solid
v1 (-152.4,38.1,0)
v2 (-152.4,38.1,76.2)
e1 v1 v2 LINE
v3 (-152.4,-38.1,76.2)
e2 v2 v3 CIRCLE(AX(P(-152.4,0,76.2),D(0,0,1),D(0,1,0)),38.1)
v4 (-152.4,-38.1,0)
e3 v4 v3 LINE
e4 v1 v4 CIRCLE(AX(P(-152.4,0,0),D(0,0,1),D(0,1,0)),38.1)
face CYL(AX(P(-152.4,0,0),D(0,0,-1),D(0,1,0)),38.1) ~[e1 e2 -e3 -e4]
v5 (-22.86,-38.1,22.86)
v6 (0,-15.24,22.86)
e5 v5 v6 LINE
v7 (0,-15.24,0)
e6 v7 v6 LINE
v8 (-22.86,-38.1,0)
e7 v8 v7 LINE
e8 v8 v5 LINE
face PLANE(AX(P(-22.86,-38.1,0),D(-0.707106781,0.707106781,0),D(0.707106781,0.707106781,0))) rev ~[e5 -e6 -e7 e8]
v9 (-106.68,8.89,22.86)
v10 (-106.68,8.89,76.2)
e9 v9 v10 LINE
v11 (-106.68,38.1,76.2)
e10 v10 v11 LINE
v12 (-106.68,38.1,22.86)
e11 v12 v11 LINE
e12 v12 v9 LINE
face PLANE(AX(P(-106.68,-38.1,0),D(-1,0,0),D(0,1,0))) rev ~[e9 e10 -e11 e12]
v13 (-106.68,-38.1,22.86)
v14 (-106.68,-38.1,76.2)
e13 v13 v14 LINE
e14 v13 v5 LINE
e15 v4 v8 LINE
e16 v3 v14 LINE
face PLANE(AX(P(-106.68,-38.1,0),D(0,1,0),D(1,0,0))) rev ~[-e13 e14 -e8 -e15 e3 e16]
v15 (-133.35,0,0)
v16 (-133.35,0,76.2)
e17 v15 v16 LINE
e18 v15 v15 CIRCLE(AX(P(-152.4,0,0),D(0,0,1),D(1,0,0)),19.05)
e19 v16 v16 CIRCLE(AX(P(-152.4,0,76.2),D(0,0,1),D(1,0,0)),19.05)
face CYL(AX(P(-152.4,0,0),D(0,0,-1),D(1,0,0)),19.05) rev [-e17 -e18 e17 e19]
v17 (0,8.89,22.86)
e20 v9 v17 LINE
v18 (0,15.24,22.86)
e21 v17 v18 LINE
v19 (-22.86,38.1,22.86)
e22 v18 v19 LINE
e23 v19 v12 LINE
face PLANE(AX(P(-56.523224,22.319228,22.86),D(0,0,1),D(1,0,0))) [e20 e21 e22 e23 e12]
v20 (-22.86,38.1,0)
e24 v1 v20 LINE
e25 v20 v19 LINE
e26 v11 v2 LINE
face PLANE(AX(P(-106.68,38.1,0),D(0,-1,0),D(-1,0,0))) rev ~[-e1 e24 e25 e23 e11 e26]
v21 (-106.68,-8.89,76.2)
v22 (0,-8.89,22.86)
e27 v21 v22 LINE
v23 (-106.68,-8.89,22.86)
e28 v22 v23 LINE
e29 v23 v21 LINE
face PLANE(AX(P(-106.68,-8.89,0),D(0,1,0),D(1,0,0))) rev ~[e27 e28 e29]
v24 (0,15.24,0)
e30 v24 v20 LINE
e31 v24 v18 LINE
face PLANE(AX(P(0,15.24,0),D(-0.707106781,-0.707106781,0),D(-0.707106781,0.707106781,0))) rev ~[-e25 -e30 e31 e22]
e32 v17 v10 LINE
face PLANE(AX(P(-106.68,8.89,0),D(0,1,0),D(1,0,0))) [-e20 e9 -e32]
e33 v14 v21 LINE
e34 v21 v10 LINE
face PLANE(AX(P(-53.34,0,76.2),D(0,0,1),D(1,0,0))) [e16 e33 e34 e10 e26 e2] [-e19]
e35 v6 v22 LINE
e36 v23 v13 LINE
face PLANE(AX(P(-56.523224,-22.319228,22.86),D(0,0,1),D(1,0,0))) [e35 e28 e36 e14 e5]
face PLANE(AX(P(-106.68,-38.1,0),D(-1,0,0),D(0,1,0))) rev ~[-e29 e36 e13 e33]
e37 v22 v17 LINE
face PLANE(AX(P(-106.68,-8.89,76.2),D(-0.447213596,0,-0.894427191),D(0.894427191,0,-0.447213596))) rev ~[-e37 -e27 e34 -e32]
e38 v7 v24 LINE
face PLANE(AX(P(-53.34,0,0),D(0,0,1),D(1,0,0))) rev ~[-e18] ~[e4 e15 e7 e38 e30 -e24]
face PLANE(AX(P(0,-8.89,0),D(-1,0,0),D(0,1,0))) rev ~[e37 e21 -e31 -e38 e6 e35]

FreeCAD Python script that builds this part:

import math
import FreeCAD as App
import Part
import Sketcher
from FreeCAD import Vector
Q = App.Units.Quantity

doc = App.newDocument("Part")
body = doc.addObject("PartDesign::Body", "Body")

# Sketch on XY plane
sketch1 = body.newObject("Sketcher::SketchObject", "Sketch")
sketch1.AttachmentSupport = (doc.getObject("XY_Plane"), [""])
sketch1.MapMode = "FlatFace"
sketch1.addGeometry([
    Part.LineSegment(Vector(-107, 38, 0), Vector(-152, 38, 0)),  # 0
    Part.ArcOfCircle(Part.Circle(Vector(-152, 0, 0), Vector(0, 0, 1), 38), math.radians(90), math.radians(270)),  # 1
    Part.LineSegment(Vector(-152, -38, 0), Vector(-107, -38, 0)),  # 2
    Part.LineSegment(Vector(-107, -38, 0), Vector(-107, 38, 0)),  # 3
    Part.Circle(Vector(-152, 0, 0), Vector(0, 0, 1), 19),  # 4
], False)
sketch1.addConstraint([
    Sketcher.Constraint("Tangent", 0, 2, 1, 1),
    Sketcher.Constraint("Tangent", 1, 2, 2, 1),
    Sketcher.Constraint("Coincident", 2, 2, 3, 1),
    Sketcher.Constraint("Coincident", 3, 2, 0, 1),
    Sketcher.Constraint("Horizontal", 0),
    Sketcher.Constraint("Horizontal", 2),
    Sketcher.Constraint("Vertical", 3),
    Sketcher.Constraint("Coincident", 4, 3, 1, 3),
    Sketcher.Constraint("PointOnObject", 1, 3, -1),
    Sketcher.Constraint("Diameter", 4, Q("1.5 in")),
    Sketcher.Constraint("Radius", 1, Q("1.5 in")),
    Sketcher.Constraint("DistanceX", 0, 2, 0, 1, Q("1.8 in")),
    Sketcher.Constraint("DistanceX", 1, 3, -1, 1, Q("6 in")),
])
pad1 = body.newObject("PartDesign::Pad", "Pad")
pad1.Profile = sketch1
pad1.Length = Q("3 in")

# Sketch on XY plane
sketch2 = body.newObject("Sketcher::SketchObject", "Sketch001")
sketch2.AttachmentSupport = (doc.getObject("XY_Plane"), [""])
sketch2.MapMode = "FlatFace"
sketch2.addGeometry([
    Part.LineSegment(Vector(-107, -9, 0), Vector(-107, -38, 0)),  # 0
    Part.LineSegment(Vector(-107, -38, 0), Vector(-23, -38, 0)),  # 1
    Part.LineSegment(Vector(-23, -38, 0), Vector(0, -15, 0)),  # 2
    Part.LineSegment(Vector(0, -15, 0), Vector(0, -9, 0)),  # 3
    Part.LineSegment(Vector(0, -9, 0), Vector(-107, -9, 0)),  # 4
    Part.LineSegment(Vector(-23, 38, 0), Vector(-107, 38, 0)),  # 5
    Part.LineSegment(Vector(-107, 38, 0), Vector(-107, 9, 0)),  # 6
    Part.LineSegment(Vector(-107, 9, 0), Vector(0, 9, 0)),  # 7
    Part.LineSegment(Vector(0, 9, 0), Vector(0, 15, 0)),  # 8
    Part.LineSegment(Vector(0, 15, 0), Vector(-23, 38, 0)),  # 9
], False)
sketch2.addConstraint([
    Sketcher.Constraint("Coincident", 0, 2, 1, 1),
    Sketcher.Constraint("Coincident", 1, 2, 2, 1),
    Sketcher.Constraint("Coincident", 2, 2, 3, 1),
    Sketcher.Constraint("Coincident", 3, 2, 4, 1),
    Sketcher.Constraint("Coincident", 4, 2, 0, 1),
    Sketcher.Constraint("Coincident", 5, 2, 6, 1),
    Sketcher.Constraint("Coincident", 6, 2, 7, 1),
    Sketcher.Constraint("Coincident", 7, 2, 8, 1),
    Sketcher.Constraint("Coincident", 8, 2, 9, 1),
    Sketcher.Constraint("Coincident", 9, 2, 5, 1),
    Sketcher.Constraint("Vertical", 0),
    Sketcher.Constraint("Horizontal", 1),
    Sketcher.Constraint("Vertical", 3),
    Sketcher.Constraint("Horizontal", 4),
    Sketcher.Constraint("Horizontal", 5),
    Sketcher.Constraint("Vertical", 6),
    Sketcher.Constraint("Horizontal", 7),
    Sketcher.Constraint("Vertical", 8),
    Sketcher.Constraint("Symmetric", 3, 2, 7, 2, -1, 1),
    Sketcher.Constraint("Symmetric", 0, 2, 5, 2, -1),
    Sketcher.Constraint("Symmetric", 2, 2, 8, 2, -1),
    Sketcher.Constraint("Perpendicular", 2, 9),
    Sketcher.Constraint("Vertical", 1, 2, 9, 2),
    Sketcher.Constraint("DistanceX", 1, 1, 1, 2, Q("3.3 in")),
    Sketcher.Constraint("DistanceX", 4, 2, 4, 1, Q("4.2 in")),
    Sketcher.Constraint("DistanceY", 0, 2, 5, 2, Q("3 in")),
    Sketcher.Constraint("DistanceY", 0, 2, 0, 1, Q("1.15 in")),
])
pad2 = body.newObject("PartDesign::Pad", "Pad001")
pad2.Profile = sketch2
pad2.Length = Q("0.9 in")

# Sketch on XY plane
sketch3 = body.newObject("Sketcher::SketchObject", "Sketch002")
sketch3.AttachmentSupport = (doc.getObject("XY_Plane"), [""])
sketch3.MapMode = "FlatFace"
sketch3.addGeometry([
    Part.LineSegment(Vector(-107, 9, 0), Vector(-107, -9, 0)),
    Part.LineSegment(Vector(-107, -9, 0), Vector(0, -9, 0)),
    Part.LineSegment(Vector(0, -9, 0), Vector(0, 9, 0)),
    Part.LineSegment(Vector(0, 9, 0), Vector(-107, 9, 0)),
], False)
sketch3.addConstraint([
    Sketcher.Constraint("Coincident", 0, 2, 1, 1),
    Sketcher.Constraint("Coincident", 1, 2, 2, 1),
    Sketcher.Constraint("Coincident", 2, 2, 3, 1),
    Sketcher.Constraint("Coincident", 3, 2, 0, 1),
    Sketcher.Constraint("Vertical", 0),
    Sketcher.Constraint("Horizontal", 1),
    Sketcher.Constraint("Vertical", 2),
    Sketcher.Constraint("Horizontal", 3),
    Sketcher.Constraint("Symmetric", 1, 2, 2, 2, -1, 1),
    Sketcher.Constraint("DistanceX", 1, 1, 1, 2, Q("4.2 in")),
    Sketcher.Constraint("DistanceY", 0, 2, 0, 1, Q("0.7 in")),
])
pad3 = body.newObject("PartDesign::Pad", "Pad002")
pad3.Profile = sketch3
pad3.Length = Q("3 in")

# Sketch on XZ plane
sketch4 = body.newObject("Sketcher::SketchObject", "Sketch003")
sketch4.AttachmentSupport = (doc.getObject("XZ_Plane"), [""])
sketch4.MapMode = "FlatFace"
sketch4.AttachmentOffset = App.Placement(Vector(0, 0, 0.35 * 25.4), App.Rotation())
sketch4.addGeometry([
    Part.LineSegment(Vector(0, 76, 0), Vector(-107, 76, 0)),
    Part.LineSegment(Vector(-107, 76, 0), Vector(0, 23, 0)),
    Part.LineSegment(Vector(0, 23, 0), Vector(0, 76, 0)),
], False)
sketch4.addConstraint([
    Sketcher.Constraint("Coincident", 0, 2, 1, 1),
    Sketcher.Constraint("Coincident", 1, 2, 2, 1),
    Sketcher.Constraint("Coincident", 2, 2, 0, 1),
    Sketcher.Constraint("Horizontal", 0),
    Sketcher.Constraint("Vertical", 2),
    Sketcher.Constraint("PointOnObject", 1, 2, -2),
    Sketcher.Constraint("DistanceX", 0, 2, 0, 1, Q("4.2 in")),
    Sketcher.Constraint("DistanceY", 2, 1, 2, 2, Q("2.1 in")),
    Sketcher.Constraint("DistanceY", -1, 1, 0, 2, Q("3 in")),
])
pocket1 = body.newObject("PartDesign::Pocket", "Pocket")
pocket1.Profile = sketch4
pocket1.Length = Q("10 in")

doc.recompute()
